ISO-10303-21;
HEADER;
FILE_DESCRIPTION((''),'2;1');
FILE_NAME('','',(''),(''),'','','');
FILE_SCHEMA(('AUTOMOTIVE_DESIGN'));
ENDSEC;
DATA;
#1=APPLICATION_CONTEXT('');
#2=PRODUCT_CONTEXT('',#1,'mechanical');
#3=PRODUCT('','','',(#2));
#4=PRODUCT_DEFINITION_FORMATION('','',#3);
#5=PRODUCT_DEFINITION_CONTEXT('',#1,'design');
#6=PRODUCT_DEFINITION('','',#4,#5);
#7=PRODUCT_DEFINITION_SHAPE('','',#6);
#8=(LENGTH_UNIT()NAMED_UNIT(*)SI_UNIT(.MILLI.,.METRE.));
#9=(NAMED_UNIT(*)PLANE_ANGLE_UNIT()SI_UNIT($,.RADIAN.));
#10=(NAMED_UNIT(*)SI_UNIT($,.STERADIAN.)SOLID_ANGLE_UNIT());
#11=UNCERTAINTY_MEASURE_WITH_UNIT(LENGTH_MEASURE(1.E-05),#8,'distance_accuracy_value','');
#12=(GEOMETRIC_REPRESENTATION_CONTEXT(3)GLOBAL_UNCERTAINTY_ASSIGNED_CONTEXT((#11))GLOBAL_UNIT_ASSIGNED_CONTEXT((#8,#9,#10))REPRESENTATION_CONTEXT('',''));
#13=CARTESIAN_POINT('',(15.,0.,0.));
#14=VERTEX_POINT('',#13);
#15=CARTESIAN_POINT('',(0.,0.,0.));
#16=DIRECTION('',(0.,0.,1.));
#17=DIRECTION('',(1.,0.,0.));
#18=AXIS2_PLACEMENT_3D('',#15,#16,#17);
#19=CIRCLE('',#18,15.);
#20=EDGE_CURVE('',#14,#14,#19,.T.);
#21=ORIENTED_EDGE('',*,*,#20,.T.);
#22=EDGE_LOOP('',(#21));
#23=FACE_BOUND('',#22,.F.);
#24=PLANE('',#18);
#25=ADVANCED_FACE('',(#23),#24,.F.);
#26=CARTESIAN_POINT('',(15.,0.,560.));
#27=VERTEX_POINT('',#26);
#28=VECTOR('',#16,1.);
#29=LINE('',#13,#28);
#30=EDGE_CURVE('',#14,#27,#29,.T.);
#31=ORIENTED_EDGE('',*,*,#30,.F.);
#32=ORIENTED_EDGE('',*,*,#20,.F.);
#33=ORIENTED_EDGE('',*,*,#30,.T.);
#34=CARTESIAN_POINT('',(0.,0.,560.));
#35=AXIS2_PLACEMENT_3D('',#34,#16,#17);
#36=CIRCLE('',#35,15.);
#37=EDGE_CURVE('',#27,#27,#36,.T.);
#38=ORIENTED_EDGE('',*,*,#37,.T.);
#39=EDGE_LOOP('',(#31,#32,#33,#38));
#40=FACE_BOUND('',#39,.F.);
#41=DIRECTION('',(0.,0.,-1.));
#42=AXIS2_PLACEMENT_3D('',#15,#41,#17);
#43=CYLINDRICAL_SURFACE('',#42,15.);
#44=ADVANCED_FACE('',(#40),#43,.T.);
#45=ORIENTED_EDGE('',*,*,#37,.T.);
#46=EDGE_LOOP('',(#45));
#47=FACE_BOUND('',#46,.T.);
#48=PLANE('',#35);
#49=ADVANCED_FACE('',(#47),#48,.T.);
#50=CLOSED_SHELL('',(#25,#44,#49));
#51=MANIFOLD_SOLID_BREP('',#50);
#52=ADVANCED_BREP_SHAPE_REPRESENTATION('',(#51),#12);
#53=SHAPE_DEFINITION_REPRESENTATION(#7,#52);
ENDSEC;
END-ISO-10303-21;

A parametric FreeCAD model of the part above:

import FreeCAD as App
import Part
import Sketcher
Q = App.Units.Quantity

doc = App.newDocument("Part")
params = doc.addObject("Spreadsheet::Sheet", "Params")
for row, (alias, value) in enumerate([
    ("sketch1_diameter", "30 mm"),
    ("pad1_length", "560 mm"),
], start=1):
    params.set(f"A{row}", alias)
    params.set(f"B{row}", "=" + value)
    params.setAlias(f"B{row}", alias)

body = doc.addObject("PartDesign::Body", "Body")

sketch1 = body.newObject("Sketcher::SketchObject", "Sketch")
sketch1.AttachmentSupport = (doc.getObject("XY_Plane"), [""])
sketch1.MapMode = "FlatFace"
sketch1.addGeometry(Part.Circle(App.Vector(0, 0, 0), App.Vector(0, 0, 1), 15), False)
sketch1.addConstraint([
    Sketcher.Constraint("Coincident", 0, 3, -1, 1),
    Sketcher.Constraint("Diameter", 0, Q("30 mm")),
])
sketch1.setExpression("Constraints[1]", "Params.sketch1_diameter")
pad1 = body.newObject("PartDesign::Pad", "Pad")
pad1.Profile = sketch1
pad1.setExpression("Length", "Params.pad1_length")

doc.recompute()
